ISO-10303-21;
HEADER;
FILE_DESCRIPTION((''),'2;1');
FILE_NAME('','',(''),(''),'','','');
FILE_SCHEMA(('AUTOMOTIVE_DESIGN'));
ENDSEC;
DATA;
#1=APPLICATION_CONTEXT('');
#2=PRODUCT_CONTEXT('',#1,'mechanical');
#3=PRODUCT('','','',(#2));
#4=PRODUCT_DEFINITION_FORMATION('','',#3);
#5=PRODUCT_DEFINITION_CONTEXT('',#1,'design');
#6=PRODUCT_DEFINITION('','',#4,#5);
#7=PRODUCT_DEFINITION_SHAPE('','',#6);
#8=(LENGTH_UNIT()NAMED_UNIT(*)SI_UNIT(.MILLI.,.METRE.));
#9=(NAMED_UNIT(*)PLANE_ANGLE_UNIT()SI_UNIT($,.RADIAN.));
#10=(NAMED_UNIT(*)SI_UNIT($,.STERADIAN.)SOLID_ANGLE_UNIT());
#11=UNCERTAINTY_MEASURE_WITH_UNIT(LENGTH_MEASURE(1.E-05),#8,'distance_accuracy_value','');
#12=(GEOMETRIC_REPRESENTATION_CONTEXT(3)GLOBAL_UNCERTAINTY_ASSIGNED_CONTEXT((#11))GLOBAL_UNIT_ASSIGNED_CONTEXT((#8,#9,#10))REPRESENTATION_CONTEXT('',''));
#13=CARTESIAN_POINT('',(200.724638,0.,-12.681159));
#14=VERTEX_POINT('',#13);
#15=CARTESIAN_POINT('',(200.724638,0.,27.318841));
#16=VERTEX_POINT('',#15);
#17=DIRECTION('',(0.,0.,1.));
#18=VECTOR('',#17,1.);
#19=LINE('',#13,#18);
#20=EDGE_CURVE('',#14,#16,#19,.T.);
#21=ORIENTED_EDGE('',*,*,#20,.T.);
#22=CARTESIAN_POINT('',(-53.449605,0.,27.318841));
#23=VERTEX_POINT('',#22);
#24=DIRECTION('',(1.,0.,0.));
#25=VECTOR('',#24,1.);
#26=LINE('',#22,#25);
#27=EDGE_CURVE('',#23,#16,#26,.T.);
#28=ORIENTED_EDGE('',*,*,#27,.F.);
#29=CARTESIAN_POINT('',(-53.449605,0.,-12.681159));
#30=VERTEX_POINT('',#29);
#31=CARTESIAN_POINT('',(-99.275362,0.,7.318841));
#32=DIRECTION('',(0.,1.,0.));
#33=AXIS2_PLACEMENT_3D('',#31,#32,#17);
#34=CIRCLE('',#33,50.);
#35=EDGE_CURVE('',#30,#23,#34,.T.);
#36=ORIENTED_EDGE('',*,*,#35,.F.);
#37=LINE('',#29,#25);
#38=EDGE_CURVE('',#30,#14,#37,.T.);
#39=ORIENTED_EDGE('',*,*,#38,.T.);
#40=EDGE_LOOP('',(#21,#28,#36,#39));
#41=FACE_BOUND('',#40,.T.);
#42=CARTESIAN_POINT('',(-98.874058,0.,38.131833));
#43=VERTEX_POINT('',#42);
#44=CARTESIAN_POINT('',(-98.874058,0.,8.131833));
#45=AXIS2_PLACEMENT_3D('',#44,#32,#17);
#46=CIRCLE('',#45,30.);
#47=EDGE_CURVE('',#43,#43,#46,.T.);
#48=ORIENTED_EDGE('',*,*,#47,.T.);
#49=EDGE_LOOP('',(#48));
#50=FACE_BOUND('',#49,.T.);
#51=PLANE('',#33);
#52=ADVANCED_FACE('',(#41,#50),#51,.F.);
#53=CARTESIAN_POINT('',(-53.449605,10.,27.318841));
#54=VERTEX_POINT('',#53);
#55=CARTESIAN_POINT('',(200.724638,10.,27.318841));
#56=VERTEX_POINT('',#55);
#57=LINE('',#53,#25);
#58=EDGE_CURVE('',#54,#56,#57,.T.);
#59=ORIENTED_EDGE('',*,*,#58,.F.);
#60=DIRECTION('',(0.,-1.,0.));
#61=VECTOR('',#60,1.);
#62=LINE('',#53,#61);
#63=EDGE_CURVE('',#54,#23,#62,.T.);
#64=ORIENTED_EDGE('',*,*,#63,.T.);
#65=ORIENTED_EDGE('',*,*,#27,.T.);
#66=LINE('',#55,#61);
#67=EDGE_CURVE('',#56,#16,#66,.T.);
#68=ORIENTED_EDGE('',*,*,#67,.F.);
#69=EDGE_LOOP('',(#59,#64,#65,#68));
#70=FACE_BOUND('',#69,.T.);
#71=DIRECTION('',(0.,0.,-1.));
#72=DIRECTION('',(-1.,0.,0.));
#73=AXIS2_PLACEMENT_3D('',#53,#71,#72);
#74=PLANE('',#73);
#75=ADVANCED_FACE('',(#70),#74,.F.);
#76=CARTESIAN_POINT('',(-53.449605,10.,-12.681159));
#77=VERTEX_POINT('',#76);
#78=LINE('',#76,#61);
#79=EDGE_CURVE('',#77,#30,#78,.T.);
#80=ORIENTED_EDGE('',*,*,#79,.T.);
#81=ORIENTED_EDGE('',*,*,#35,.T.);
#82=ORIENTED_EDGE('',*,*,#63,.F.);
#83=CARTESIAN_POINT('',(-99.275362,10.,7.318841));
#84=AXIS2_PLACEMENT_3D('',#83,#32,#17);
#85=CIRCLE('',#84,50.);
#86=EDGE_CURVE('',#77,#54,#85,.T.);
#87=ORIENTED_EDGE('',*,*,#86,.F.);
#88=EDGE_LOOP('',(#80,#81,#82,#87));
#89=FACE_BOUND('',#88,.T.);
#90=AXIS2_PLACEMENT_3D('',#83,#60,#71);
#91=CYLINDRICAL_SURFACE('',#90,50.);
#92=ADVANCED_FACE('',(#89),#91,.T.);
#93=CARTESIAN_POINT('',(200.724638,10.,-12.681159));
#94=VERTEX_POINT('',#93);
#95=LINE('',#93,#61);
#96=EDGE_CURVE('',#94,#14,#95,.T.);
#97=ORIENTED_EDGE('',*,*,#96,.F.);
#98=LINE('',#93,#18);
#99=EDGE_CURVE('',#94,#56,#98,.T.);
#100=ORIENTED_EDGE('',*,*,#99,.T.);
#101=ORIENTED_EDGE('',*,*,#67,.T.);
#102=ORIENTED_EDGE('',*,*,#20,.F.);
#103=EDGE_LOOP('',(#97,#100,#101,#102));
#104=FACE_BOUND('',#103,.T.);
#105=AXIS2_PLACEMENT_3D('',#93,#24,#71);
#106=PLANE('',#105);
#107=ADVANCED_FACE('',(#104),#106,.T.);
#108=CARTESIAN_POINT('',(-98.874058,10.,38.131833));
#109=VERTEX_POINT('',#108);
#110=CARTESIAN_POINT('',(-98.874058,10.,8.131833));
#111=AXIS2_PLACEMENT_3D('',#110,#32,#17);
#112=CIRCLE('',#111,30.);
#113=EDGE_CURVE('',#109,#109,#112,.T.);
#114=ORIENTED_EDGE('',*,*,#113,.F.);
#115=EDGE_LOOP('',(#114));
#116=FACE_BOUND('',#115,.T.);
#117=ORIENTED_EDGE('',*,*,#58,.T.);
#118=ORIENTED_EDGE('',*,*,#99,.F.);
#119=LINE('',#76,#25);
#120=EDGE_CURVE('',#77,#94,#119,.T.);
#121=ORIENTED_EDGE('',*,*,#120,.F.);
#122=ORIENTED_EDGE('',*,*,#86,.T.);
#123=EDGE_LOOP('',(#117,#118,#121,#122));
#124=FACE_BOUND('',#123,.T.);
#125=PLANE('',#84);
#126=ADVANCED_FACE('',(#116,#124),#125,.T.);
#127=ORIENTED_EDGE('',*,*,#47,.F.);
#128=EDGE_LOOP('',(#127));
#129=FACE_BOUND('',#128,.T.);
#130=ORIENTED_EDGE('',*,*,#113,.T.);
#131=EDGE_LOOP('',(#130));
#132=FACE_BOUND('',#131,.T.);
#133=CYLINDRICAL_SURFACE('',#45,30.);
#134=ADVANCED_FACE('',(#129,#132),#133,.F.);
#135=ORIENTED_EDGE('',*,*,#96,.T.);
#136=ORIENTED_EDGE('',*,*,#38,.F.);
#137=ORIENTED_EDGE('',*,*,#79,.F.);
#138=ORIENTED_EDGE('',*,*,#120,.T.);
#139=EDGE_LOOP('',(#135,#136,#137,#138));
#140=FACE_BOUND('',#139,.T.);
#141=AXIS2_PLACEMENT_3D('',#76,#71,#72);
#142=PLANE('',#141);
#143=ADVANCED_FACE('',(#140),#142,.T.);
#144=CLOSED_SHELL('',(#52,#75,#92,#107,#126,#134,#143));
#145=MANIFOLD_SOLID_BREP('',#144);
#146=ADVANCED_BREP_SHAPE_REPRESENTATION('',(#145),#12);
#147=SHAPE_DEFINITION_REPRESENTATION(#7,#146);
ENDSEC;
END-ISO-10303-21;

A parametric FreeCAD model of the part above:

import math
import FreeCAD as App
import Part
import Sketcher
from FreeCAD import Vector

doc = App.newDocument("Part")
body = doc.addObject("PartDesign::Body", "Body")

sketch1 = body.newObject("Sketcher::SketchObject", "Sketch")
sketch1.AttachmentSupport = (doc.getObject("XZ_Plane"), [""])
sketch1.MapMode = "FlatFace"
sketch1.addGeometry([
    Part.LineSegment(Vector(201, -13, 0), Vector(-53, -13, 0)),
    Part.ArcOfCircle(Part.Circle(Vector(-99, 7, 0), Vector(0, 0, 1), 50), math.radians(24), math.radians(336)),
    Part.LineSegment(Vector(-53, 27, 0), Vector(201, 27, 0)),
    Part.LineSegment(Vector(201, 27, 0), Vector(201, -13, 0)),
], False)
sketch1.addConstraint([
    Sketcher.Constraint("Coincident", 0, 2, 1, 2),
    Sketcher.Constraint("Coincident", 1, 1, 2, 1),
    Sketcher.Constraint("Coincident", 2, 2, 3, 1),
    Sketcher.Constraint("Coincident", 3, 2, 0, 1),
    Sketcher.Constraint("Horizontal", 0),
    Sketcher.Constraint("Horizontal", 2),
    Sketcher.Constraint("Vertical", 3),
    Sketcher.Constraint("Vertical", 0, 2, 1, 1),
    Sketcher.Constraint("Radius", 1, 50.0),
    Sketcher.Constraint("DistanceY", 3, 2, 3, 1, 40.0),
    Sketcher.Constraint("DistanceX", 1, 3, 2, 2, 300.0),
    Sketcher.Constraint("DistanceY", -1, 1, 1, 3, 7.318841),
    Sketcher.Constraint("DistanceX", 1, 3, -1, 1, 99.275362),
])
pad1 = body.newObject("PartDesign::Pad", "Pad")
pad1.Profile = sketch1
pad1.Length = 10
pad1.Reversed = True

sketch2 = body.newObject("Sketcher::SketchObject", "Sketch001")
sketch2.AttachmentSupport = (doc.getObject("XZ_Plane"), [""])
sketch2.MapMode = "FlatFace"
sketch2.AttachmentOffset = App.Placement(Vector(0, 0, -10), App.Rotation())
sketch2.addGeometry(Part.Circle(Vector(-99, 8, 0), Vector(0, 0, 1), 30), False)
sketch2.addConstraint([
    Sketcher.Constraint("Diameter", 0, 60.0),
    Sketcher.Constraint("DistanceX", 0, 3, -1, 1, 98.874058),
    Sketcher.Constraint("DistanceY", -1, 1, 0, 3, 8.131833),
])
pocket1 = body.newObject("PartDesign::Pocket", "Pocket")
pocket1.Profile = sketch2
pocket1.Type = "ThroughAll"
pocket1.Reversed = True

doc.recompute()
